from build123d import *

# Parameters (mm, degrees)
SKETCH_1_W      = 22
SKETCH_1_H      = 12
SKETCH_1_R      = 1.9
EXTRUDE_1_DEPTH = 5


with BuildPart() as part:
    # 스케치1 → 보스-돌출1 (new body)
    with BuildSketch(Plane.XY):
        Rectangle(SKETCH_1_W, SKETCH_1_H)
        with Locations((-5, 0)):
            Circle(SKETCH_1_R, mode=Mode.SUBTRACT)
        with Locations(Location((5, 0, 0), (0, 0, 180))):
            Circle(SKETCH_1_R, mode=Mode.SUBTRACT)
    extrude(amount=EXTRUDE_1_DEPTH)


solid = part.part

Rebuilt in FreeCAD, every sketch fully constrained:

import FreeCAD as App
import Part
import Sketcher
from FreeCAD import Vector


def add_polygon(sketch, points):
    """Adds a closed chain of lines whose ends are joined by coincident constraints."""
    first, n = sketch.GeometryCount, len(points)
    for a, b in zip(points, points[1:] + points[:1]):
        sketch.addGeometry(Part.LineSegment(App.Vector(*a, 0), App.Vector(*b, 0)), False)
    for i in range(n):
        sketch.addConstraint(Sketcher.Constraint("Coincident", first + i, 2, first + (i + 1) % n, 1))

doc = App.newDocument("Part")
params = doc.addObject("Spreadsheet::Sheet", "Params")
for row, (alias, value) in enumerate([
    ("sketch1_diameter", "3.8 mm"),
    ("sketch1_width", "22 mm"),
    ("sketch1_height", "12 mm"),
    ("pad1_length", "5 mm"),
], start=1):
    params.set(f"A{row}", alias)
    params.set(f"B{row}", "=" + value)
    params.setAlias(f"B{row}", alias)

body = doc.addObject("PartDesign::Body", "Body")

# Sketch on XY plane
sketch1 = body.newObject("Sketcher::SketchObject", "Sketch")
sketch1.AttachmentSupport = (doc.getObject("XY_Plane"), [""])
sketch1.MapMode = "FlatFace"
add_polygon(sketch1, [(-11, 6), (-11, -6), (11, -6), (11, 6)])  # lines 0-3
sketch1.addGeometry(Part.Circle(Vector(-5, 0, 0), Vector(0, 0, 1), 1.9), False)  # 4
sketch1.addGeometry(Part.Circle(Vector(5, 0, 0), Vector(0, 0, 1), 1.9), False)  # 5
sketch1.addConstraint(Sketcher.Constraint("Vertical", 0))
sketch1.addConstraint(Sketcher.Constraint("Horizontal", 1))
sketch1.addConstraint(Sketcher.Constraint("Vertical", 2))
sketch1.addConstraint(Sketcher.Constraint("Horizontal", 3))
sketch1.addConstraint(Sketcher.Constraint("Equal", 4, 5))
sketch1.addConstraint(Sketcher.Constraint("Symmetric", 4, 3, 5, 3, -1, 1))
sketch1.addConstraint(Sketcher.Constraint("Symmetric", 0, 2, 2, 2, -1, 1))
sketch1.addConstraint(Sketcher.Constraint("PointOnObject", 4, 3, -1))
sketch1.addConstraint(Sketcher.Constraint("Diameter", 4, 3.8))
sketch1.addConstraint(Sketcher.Constraint("DistanceX", 1, 1, 1, 2, 22.0))
sketch1.addConstraint(Sketcher.Constraint("DistanceY", 0, 2, 0, 1, 12.0))
sketch1.addConstraint(Sketcher.Constraint("DistanceX", 4, 3, -1, 1, 5.0))
sketch1.setExpression("Constraints[12]", "Params.sketch1_diameter")
sketch1.setExpression("Constraints[13]", "Params.sketch1_width")
sketch1.setExpression("Constraints[14]", "Params.sketch1_height")
pad1 = body.newObject("PartDesign::Pad", "Pad")
pad1.Profile = sketch1
pad1.setExpression("Length", "Params.pad1_length")

doc.recompute()
